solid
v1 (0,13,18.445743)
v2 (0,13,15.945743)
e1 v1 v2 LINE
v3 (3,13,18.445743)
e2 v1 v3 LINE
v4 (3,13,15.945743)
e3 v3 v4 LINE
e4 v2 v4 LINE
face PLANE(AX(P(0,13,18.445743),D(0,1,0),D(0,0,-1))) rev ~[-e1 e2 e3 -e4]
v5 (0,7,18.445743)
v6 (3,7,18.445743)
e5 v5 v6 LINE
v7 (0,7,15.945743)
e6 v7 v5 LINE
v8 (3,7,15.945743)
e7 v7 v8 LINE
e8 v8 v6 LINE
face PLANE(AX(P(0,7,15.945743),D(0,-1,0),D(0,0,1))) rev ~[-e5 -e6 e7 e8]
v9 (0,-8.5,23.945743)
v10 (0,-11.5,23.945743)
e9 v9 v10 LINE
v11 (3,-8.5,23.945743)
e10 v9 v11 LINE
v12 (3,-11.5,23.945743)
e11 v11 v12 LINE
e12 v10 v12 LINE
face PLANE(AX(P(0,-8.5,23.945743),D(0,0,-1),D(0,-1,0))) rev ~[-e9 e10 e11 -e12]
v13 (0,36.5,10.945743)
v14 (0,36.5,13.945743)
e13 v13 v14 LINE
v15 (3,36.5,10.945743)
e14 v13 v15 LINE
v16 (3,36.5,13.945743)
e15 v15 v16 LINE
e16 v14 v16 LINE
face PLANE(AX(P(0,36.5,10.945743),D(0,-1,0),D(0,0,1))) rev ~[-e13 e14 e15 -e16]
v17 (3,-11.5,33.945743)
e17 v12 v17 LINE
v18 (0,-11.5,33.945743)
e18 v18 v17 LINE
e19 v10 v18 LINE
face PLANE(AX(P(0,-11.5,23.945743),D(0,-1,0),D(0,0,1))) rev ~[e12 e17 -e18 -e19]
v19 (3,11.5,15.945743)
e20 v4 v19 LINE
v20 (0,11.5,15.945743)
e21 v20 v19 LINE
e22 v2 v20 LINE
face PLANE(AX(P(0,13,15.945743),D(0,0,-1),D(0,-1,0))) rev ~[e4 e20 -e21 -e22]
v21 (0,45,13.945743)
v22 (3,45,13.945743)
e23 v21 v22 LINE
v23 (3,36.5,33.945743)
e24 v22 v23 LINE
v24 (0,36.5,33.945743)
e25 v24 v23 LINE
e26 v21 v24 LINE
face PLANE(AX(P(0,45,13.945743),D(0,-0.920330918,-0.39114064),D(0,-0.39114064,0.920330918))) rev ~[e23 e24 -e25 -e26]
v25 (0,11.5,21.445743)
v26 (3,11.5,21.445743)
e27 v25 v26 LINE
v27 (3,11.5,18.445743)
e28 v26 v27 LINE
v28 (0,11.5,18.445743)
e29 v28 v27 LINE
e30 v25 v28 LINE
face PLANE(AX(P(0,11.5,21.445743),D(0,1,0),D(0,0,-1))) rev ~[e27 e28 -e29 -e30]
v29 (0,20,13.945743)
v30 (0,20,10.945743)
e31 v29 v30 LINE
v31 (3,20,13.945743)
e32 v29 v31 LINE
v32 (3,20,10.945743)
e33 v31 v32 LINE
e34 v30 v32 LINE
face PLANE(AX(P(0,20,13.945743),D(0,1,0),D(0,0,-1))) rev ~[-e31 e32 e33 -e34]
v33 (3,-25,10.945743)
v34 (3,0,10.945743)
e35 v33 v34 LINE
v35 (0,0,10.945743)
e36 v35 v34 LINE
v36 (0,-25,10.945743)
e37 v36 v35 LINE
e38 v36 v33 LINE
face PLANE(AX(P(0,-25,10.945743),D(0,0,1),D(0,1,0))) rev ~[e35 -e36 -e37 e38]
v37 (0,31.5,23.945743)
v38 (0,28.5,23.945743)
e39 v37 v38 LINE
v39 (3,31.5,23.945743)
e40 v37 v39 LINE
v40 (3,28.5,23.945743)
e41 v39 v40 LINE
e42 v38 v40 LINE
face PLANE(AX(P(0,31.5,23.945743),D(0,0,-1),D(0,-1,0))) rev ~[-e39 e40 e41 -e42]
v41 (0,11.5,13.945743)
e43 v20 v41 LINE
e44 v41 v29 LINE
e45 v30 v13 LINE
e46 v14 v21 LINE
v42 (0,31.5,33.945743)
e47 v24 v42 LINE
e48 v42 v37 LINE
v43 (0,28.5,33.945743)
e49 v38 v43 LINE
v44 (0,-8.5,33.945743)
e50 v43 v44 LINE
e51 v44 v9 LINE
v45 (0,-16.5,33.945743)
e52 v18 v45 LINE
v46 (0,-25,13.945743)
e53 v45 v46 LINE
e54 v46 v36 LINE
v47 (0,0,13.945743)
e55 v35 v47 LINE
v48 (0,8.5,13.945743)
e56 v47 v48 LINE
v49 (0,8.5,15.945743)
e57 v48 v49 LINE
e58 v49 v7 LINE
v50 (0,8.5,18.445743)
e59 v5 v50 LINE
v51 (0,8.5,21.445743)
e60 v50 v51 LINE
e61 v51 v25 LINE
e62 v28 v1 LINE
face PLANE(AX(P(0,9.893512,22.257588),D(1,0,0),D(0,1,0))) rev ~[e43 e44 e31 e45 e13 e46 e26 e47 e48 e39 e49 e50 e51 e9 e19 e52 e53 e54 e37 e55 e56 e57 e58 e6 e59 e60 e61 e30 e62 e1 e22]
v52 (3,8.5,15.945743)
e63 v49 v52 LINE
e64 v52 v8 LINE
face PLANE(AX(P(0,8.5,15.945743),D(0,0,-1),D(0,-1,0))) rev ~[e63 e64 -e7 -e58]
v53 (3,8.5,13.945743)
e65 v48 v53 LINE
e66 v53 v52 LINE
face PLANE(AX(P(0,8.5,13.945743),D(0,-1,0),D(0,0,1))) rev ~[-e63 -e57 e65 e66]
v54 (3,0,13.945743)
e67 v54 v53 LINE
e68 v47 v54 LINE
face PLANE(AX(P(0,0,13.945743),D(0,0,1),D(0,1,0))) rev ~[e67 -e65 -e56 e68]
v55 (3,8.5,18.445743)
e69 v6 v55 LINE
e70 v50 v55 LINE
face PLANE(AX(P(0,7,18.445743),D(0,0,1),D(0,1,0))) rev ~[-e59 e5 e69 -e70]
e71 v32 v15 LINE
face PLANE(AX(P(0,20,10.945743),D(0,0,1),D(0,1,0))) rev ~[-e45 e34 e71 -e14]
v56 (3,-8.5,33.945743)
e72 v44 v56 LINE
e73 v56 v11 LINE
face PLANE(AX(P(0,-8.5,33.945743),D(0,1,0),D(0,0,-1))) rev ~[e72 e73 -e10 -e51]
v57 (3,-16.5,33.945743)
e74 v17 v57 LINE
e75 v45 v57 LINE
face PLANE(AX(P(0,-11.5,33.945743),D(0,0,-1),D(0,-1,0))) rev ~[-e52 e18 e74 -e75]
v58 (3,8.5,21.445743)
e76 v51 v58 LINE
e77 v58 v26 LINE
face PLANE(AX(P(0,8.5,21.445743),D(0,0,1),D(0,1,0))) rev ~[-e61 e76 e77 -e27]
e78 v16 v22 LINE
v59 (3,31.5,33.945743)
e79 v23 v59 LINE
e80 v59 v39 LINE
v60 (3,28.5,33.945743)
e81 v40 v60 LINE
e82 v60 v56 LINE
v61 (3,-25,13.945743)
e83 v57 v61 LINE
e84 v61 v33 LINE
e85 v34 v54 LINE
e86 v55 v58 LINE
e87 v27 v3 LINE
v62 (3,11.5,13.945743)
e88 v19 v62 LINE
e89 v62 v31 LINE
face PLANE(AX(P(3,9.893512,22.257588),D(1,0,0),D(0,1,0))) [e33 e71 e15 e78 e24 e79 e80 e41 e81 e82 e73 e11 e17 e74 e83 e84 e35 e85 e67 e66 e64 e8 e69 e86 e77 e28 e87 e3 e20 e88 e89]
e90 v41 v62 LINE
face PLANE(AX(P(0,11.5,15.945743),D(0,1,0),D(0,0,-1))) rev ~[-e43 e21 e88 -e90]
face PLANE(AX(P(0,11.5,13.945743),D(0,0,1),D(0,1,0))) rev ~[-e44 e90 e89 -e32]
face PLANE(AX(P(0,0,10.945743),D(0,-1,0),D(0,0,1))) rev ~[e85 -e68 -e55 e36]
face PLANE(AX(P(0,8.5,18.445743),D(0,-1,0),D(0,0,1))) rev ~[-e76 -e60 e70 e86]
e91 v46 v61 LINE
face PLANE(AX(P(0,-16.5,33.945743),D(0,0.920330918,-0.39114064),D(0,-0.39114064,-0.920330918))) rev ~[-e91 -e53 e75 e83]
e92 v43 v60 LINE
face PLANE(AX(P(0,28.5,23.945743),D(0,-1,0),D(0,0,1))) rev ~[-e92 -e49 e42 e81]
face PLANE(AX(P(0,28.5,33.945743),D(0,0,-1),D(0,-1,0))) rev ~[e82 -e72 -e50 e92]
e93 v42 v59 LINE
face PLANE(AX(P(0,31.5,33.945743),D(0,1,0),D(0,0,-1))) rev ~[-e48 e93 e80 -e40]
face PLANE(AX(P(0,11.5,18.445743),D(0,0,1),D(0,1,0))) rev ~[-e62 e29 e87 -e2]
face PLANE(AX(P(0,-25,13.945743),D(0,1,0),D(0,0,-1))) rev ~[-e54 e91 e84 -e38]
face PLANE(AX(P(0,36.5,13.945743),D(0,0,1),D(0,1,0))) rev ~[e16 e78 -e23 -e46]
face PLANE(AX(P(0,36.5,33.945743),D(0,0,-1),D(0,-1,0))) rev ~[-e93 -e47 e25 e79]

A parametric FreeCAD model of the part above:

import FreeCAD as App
import Part
import Sketcher
Q = App.Units.Quantity

doc = App.newDocument("Part")
body = doc.addObject("PartDesign::Body", "Body")

# Sketch on YZ plane
sketch1 = body.newObject("Sketcher::SketchObject", "Sketch")
sketch1.AttachmentSupport = (doc.getObject("YZ_Plane"), [""])
sketch1.MapMode = "FlatFace"
sketch1.addGeometry([
    Part.LineSegment(App.Vector(-11.5, 23.9, 0), App.Vector(-11.5, 33.9, 0)),  # 0
    Part.LineSegment(App.Vector(-11.5, 33.9, 0), App.Vector(-16.5, 33.9, 0)),  # 1
    Part.LineSegment(App.Vector(-16.5, 33.9, 0), App.Vector(-25, 13.9, 0)),  # 2
    Part.LineSegment(App.Vector(-25, 13.9, 0), App.Vector(-25, 10.9, 0)),  # 3
    Part.LineSegment(App.Vector(-25, 10.9, 0), App.Vector(0, 10.9, 0)),  # 4
    Part.LineSegment(App.Vector(0, 10.9, 0), App.Vector(0, 13.9, 0)),  # 5
    Part.LineSegment(App.Vector(0, 13.9, 0), App.Vector(8.5, 13.9, 0)),  # 6
    Part.LineSegment(App.Vector(8.5, 13.9, 0), App.Vector(8.5, 15.9, 0)),  # 7
    Part.LineSegment(App.Vector(8.5, 15.9, 0), App.Vector(7, 15.9, 0)),  # 8
    Part.LineSegment(App.Vector(7, 15.9, 0), App.Vector(7, 18.4, 0)),  # 9
    Part.LineSegment(App.Vector(7, 18.4, 0), App.Vector(8.5, 18.4, 0)),  # 10
    Part.LineSegment(App.Vector(8.5, 18.4, 0), App.Vector(8.5, 21.4, 0)),  # 11
    Part.LineSegment(App.Vector(8.5, 21.4, 0), App.Vector(11.5, 21.4, 0)),  # 12
    Part.LineSegment(App.Vector(11.5, 21.4, 0), App.Vector(11.5, 18.4, 0)),  # 13
    Part.LineSegment(App.Vector(11.5, 18.4, 0), App.Vector(13, 18.4, 0)),  # 14
    Part.LineSegment(App.Vector(13, 18.4, 0), App.Vector(13, 15.9, 0)),  # 15
    Part.LineSegment(App.Vector(13, 15.9, 0), App.Vector(11.5, 15.9, 0)),  # 16
    Part.LineSegment(App.Vector(11.5, 15.9, 0), App.Vector(11.5, 13.9, 0)),  # 17
    Part.LineSegment(App.Vector(11.5, 13.9, 0), App.Vector(20, 13.9, 0)),  # 18
    Part.LineSegment(App.Vector(20, 13.9, 0), App.Vector(20, 10.9, 0)),  # 19
    Part.LineSegment(App.Vector(20, 10.9, 0), App.Vector(36.5, 10.9, 0)),  # 20
    Part.LineSegment(App.Vector(36.5, 10.9, 0), App.Vector(36.5, 13.9, 0)),  # 21
    Part.LineSegment(App.Vector(36.5, 13.9, 0), App.Vector(45, 13.9, 0)),  # 22
    Part.LineSegment(App.Vector(45, 13.9, 0), App.Vector(36.5, 33.9, 0)),  # 23
    Part.LineSegment(App.Vector(36.5, 33.9, 0), App.Vector(31.5, 33.9, 0)),  # 24
    Part.LineSegment(App.Vector(31.5, 33.9, 0), App.Vector(31.5, 23.9, 0)),  # 25
    Part.LineSegment(App.Vector(31.5, 23.9, 0), App.Vector(28.5, 23.9, 0)),  # 26
    Part.LineSegment(App.Vector(28.5, 23.9, 0), App.Vector(28.5, 33.9, 0)),  # 27
    Part.LineSegment(App.Vector(28.5, 33.9, 0), App.Vector(-8.5, 33.9, 0)),  # 28
    Part.LineSegment(App.Vector(-8.5, 33.9, 0), App.Vector(-8.5, 23.9, 0)),  # 29
    Part.LineSegment(App.Vector(-8.5, 23.9, 0), App.Vector(-11.5, 23.9, 0)),  # 30
], False)
sketch1.addConstraint([
    Sketcher.Constraint("Coincident", 0, 2, 1, 1),
    Sketcher.Constraint("Coincident", 1, 2, 2, 1),
    Sketcher.Constraint("Coincident", 2, 2, 3, 1),
    Sketcher.Constraint("Coincident", 3, 2, 4, 1),
    Sketcher.Constraint("Coincident", 4, 2, 5, 1),
    Sketcher.Constraint("Coincident", 5, 2, 6, 1),
    Sketcher.Constraint("Coincident", 6, 2, 7, 1),
    Sketcher.Constraint("Coincident", 7, 2, 8, 1),
    Sketcher.Constraint("Coincident", 8, 2, 9, 1),
    Sketcher.Constraint("Coincident", 9, 2, 10, 1),
    Sketcher.Constraint("Coincident", 10, 2, 11, 1),
    Sketcher.Constraint("Coincident", 11, 2, 12, 1),
    Sketcher.Constraint("Coincident", 12, 2, 13, 1),
    Sketcher.Constraint("Coincident", 13, 2, 14, 1),
    Sketcher.Constraint("Coincident", 14, 2, 15, 1),
    Sketcher.Constraint("Coincident", 15, 2, 16, 1),
    Sketcher.Constraint("Coincident", 16, 2, 17, 1),
    Sketcher.Constraint("Coincident", 17, 2, 18, 1),
    Sketcher.Constraint("Coincident", 18, 2, 19, 1),
    Sketcher.Constraint("Coincident", 19, 2, 20, 1),
    Sketcher.Constraint("Coincident", 20, 2, 21, 1),
    Sketcher.Constraint("Coincident", 21, 2, 22, 1),
    Sketcher.Constraint("Coincident", 22, 2, 23, 1),
    Sketcher.Constraint("Coincident", 23, 2, 24, 1),
    Sketcher.Constraint("Coincident", 24, 2, 25, 1),
    Sketcher.Constraint("Coincident", 25, 2, 26, 1),
    Sketcher.Constraint("Coincident", 26, 2, 27, 1),
    Sketcher.Constraint("Coincident", 27, 2, 28, 1),
    Sketcher.Constraint("Coincident", 28, 2, 29, 1),
    Sketcher.Constraint("Coincident", 29, 2, 30, 1),
    Sketcher.Constraint("Coincident", 30, 2, 0, 1),
    Sketcher.Constraint("Vertical", 0),
    Sketcher.Constraint("Horizontal", 1),
    Sketcher.Constraint("Vertical", 3),
    Sketcher.Constraint("Horizontal", 4),
    Sketcher.Constraint("Vertical", 5),
    Sketcher.Constraint("Horizontal", 6),
    Sketcher.Constraint("Vertical", 7),
    Sketcher.Constraint("Horizontal", 8),
    Sketcher.Constraint("Vertical", 9),
    Sketcher.Constraint("Horizontal", 10),
    Sketcher.Constraint("Vertical", 11),
    Sketcher.Constraint("Horizontal", 12),
    Sketcher.Constraint("Vertical", 13),
    Sketcher.Constraint("Horizontal", 14),
    Sketcher.Constraint("Vertical", 15),
    Sketcher.Constraint("Horizontal", 16),
    Sketcher.Constraint("Vertical", 17),
    Sketcher.Constraint("Horizontal", 18),
    Sketcher.Constraint("Vertical", 19),
    Sketcher.Constraint("Horizontal", 20),
    Sketcher.Constraint("Vertical", 21),
    Sketcher.Constraint("Horizontal", 22),
    Sketcher.Constraint("Horizontal", 24),
    Sketcher.Constraint("Vertical", 25),
    Sketcher.Constraint("Horizontal", 26),
    Sketcher.Constraint("Vertical", 27),
    Sketcher.Constraint("Horizontal", 28),
    Sketcher.Constraint("Vertical", 29),
    Sketcher.Constraint("Horizontal", 30),
    Sketcher.Constraint("PointOnObject", 4, 2, -2),
    Sketcher.Constraint("Horizontal", 2, 2, 5, 2),
    Sketcher.Constraint("Horizontal", 10, 2, 13, 2),
    Sketcher.Constraint("Horizontal", 8, 2, 15, 2),
    Sketcher.Constraint("Horizontal", 6, 2, 17, 2),
    Sketcher.Constraint("Horizontal", 4, 2, 19, 2),
    Sketcher.Constraint("Horizontal", 18, 2, 21, 2),
    Sketcher.Constraint("Horizontal", 1, 2, 23, 2),
    Sketcher.Constraint("Horizontal", 24, 2, 27, 2),
    Sketcher.Constraint("Horizontal", 26, 2, 29, 2),
    Sketcher.Constraint("Vertical", 7, 2, 10, 2),
    Sketcher.Constraint("Vertical", 13, 2, 16, 2),
    Sketcher.Constraint("Vertical", 21, 2, 23, 2),
    Sketcher.Constraint("Equal", 10, 14),
    Sketcher.Constraint("Equal", 6, 18),
    Sketcher.Constraint("Equal", 18, 22),
    Sketcher.Constraint("Equal", 1, 24),
    Sketcher.Constraint("Equal", 12, 26),
    Sketcher.Constraint("Equal", 26, 30),
    Sketcher.Constraint("Equal", 30, 3),
    Sketcher.Constraint("Equal", 5, 11),
    Sketcher.Constraint("Equal", 2, 23),
    Sketcher.Constraint("DistanceX", 1, 2, 1, 1, Q("5 mm")),
    Sketcher.Constraint("DistanceX", 4, 1, 4, 2, Q("25 mm")),
    Sketcher.Constraint("DistanceX", 12, 1, 12, 2, Q("3 mm")),
    Sketcher.Constraint("DistanceX", 28, 2, 28, 1, Q("37 mm")),
    Sketcher.Constraint("DistanceY", 0, 1, 0, 2, Q("10 mm")),
    Sketcher.Constraint("DistanceY", 7, 1, 7, 2, Q("2 mm")),
    Sketcher.Constraint("DistanceX", 6, 1, 6, 2, Q("8.5 mm")),
    Sketcher.Constraint("DistanceX", 8, 2, 8, 1, Q("1.5 mm")),
    Sketcher.Constraint("DistanceY", 9, 1, 9, 2, Q("2.5 mm")),
    Sketcher.Constraint("DistanceY", 2, 2, 1, 2, Q("20 mm")),
    Sketcher.Constraint("DistanceY", -1, 1, 0, 2, Q("33.945743 mm")),
])
pad1 = body.newObject("PartDesign::Pad", "Pad")
pad1.Profile = sketch1
pad1.Length = 3

doc.recompute()
